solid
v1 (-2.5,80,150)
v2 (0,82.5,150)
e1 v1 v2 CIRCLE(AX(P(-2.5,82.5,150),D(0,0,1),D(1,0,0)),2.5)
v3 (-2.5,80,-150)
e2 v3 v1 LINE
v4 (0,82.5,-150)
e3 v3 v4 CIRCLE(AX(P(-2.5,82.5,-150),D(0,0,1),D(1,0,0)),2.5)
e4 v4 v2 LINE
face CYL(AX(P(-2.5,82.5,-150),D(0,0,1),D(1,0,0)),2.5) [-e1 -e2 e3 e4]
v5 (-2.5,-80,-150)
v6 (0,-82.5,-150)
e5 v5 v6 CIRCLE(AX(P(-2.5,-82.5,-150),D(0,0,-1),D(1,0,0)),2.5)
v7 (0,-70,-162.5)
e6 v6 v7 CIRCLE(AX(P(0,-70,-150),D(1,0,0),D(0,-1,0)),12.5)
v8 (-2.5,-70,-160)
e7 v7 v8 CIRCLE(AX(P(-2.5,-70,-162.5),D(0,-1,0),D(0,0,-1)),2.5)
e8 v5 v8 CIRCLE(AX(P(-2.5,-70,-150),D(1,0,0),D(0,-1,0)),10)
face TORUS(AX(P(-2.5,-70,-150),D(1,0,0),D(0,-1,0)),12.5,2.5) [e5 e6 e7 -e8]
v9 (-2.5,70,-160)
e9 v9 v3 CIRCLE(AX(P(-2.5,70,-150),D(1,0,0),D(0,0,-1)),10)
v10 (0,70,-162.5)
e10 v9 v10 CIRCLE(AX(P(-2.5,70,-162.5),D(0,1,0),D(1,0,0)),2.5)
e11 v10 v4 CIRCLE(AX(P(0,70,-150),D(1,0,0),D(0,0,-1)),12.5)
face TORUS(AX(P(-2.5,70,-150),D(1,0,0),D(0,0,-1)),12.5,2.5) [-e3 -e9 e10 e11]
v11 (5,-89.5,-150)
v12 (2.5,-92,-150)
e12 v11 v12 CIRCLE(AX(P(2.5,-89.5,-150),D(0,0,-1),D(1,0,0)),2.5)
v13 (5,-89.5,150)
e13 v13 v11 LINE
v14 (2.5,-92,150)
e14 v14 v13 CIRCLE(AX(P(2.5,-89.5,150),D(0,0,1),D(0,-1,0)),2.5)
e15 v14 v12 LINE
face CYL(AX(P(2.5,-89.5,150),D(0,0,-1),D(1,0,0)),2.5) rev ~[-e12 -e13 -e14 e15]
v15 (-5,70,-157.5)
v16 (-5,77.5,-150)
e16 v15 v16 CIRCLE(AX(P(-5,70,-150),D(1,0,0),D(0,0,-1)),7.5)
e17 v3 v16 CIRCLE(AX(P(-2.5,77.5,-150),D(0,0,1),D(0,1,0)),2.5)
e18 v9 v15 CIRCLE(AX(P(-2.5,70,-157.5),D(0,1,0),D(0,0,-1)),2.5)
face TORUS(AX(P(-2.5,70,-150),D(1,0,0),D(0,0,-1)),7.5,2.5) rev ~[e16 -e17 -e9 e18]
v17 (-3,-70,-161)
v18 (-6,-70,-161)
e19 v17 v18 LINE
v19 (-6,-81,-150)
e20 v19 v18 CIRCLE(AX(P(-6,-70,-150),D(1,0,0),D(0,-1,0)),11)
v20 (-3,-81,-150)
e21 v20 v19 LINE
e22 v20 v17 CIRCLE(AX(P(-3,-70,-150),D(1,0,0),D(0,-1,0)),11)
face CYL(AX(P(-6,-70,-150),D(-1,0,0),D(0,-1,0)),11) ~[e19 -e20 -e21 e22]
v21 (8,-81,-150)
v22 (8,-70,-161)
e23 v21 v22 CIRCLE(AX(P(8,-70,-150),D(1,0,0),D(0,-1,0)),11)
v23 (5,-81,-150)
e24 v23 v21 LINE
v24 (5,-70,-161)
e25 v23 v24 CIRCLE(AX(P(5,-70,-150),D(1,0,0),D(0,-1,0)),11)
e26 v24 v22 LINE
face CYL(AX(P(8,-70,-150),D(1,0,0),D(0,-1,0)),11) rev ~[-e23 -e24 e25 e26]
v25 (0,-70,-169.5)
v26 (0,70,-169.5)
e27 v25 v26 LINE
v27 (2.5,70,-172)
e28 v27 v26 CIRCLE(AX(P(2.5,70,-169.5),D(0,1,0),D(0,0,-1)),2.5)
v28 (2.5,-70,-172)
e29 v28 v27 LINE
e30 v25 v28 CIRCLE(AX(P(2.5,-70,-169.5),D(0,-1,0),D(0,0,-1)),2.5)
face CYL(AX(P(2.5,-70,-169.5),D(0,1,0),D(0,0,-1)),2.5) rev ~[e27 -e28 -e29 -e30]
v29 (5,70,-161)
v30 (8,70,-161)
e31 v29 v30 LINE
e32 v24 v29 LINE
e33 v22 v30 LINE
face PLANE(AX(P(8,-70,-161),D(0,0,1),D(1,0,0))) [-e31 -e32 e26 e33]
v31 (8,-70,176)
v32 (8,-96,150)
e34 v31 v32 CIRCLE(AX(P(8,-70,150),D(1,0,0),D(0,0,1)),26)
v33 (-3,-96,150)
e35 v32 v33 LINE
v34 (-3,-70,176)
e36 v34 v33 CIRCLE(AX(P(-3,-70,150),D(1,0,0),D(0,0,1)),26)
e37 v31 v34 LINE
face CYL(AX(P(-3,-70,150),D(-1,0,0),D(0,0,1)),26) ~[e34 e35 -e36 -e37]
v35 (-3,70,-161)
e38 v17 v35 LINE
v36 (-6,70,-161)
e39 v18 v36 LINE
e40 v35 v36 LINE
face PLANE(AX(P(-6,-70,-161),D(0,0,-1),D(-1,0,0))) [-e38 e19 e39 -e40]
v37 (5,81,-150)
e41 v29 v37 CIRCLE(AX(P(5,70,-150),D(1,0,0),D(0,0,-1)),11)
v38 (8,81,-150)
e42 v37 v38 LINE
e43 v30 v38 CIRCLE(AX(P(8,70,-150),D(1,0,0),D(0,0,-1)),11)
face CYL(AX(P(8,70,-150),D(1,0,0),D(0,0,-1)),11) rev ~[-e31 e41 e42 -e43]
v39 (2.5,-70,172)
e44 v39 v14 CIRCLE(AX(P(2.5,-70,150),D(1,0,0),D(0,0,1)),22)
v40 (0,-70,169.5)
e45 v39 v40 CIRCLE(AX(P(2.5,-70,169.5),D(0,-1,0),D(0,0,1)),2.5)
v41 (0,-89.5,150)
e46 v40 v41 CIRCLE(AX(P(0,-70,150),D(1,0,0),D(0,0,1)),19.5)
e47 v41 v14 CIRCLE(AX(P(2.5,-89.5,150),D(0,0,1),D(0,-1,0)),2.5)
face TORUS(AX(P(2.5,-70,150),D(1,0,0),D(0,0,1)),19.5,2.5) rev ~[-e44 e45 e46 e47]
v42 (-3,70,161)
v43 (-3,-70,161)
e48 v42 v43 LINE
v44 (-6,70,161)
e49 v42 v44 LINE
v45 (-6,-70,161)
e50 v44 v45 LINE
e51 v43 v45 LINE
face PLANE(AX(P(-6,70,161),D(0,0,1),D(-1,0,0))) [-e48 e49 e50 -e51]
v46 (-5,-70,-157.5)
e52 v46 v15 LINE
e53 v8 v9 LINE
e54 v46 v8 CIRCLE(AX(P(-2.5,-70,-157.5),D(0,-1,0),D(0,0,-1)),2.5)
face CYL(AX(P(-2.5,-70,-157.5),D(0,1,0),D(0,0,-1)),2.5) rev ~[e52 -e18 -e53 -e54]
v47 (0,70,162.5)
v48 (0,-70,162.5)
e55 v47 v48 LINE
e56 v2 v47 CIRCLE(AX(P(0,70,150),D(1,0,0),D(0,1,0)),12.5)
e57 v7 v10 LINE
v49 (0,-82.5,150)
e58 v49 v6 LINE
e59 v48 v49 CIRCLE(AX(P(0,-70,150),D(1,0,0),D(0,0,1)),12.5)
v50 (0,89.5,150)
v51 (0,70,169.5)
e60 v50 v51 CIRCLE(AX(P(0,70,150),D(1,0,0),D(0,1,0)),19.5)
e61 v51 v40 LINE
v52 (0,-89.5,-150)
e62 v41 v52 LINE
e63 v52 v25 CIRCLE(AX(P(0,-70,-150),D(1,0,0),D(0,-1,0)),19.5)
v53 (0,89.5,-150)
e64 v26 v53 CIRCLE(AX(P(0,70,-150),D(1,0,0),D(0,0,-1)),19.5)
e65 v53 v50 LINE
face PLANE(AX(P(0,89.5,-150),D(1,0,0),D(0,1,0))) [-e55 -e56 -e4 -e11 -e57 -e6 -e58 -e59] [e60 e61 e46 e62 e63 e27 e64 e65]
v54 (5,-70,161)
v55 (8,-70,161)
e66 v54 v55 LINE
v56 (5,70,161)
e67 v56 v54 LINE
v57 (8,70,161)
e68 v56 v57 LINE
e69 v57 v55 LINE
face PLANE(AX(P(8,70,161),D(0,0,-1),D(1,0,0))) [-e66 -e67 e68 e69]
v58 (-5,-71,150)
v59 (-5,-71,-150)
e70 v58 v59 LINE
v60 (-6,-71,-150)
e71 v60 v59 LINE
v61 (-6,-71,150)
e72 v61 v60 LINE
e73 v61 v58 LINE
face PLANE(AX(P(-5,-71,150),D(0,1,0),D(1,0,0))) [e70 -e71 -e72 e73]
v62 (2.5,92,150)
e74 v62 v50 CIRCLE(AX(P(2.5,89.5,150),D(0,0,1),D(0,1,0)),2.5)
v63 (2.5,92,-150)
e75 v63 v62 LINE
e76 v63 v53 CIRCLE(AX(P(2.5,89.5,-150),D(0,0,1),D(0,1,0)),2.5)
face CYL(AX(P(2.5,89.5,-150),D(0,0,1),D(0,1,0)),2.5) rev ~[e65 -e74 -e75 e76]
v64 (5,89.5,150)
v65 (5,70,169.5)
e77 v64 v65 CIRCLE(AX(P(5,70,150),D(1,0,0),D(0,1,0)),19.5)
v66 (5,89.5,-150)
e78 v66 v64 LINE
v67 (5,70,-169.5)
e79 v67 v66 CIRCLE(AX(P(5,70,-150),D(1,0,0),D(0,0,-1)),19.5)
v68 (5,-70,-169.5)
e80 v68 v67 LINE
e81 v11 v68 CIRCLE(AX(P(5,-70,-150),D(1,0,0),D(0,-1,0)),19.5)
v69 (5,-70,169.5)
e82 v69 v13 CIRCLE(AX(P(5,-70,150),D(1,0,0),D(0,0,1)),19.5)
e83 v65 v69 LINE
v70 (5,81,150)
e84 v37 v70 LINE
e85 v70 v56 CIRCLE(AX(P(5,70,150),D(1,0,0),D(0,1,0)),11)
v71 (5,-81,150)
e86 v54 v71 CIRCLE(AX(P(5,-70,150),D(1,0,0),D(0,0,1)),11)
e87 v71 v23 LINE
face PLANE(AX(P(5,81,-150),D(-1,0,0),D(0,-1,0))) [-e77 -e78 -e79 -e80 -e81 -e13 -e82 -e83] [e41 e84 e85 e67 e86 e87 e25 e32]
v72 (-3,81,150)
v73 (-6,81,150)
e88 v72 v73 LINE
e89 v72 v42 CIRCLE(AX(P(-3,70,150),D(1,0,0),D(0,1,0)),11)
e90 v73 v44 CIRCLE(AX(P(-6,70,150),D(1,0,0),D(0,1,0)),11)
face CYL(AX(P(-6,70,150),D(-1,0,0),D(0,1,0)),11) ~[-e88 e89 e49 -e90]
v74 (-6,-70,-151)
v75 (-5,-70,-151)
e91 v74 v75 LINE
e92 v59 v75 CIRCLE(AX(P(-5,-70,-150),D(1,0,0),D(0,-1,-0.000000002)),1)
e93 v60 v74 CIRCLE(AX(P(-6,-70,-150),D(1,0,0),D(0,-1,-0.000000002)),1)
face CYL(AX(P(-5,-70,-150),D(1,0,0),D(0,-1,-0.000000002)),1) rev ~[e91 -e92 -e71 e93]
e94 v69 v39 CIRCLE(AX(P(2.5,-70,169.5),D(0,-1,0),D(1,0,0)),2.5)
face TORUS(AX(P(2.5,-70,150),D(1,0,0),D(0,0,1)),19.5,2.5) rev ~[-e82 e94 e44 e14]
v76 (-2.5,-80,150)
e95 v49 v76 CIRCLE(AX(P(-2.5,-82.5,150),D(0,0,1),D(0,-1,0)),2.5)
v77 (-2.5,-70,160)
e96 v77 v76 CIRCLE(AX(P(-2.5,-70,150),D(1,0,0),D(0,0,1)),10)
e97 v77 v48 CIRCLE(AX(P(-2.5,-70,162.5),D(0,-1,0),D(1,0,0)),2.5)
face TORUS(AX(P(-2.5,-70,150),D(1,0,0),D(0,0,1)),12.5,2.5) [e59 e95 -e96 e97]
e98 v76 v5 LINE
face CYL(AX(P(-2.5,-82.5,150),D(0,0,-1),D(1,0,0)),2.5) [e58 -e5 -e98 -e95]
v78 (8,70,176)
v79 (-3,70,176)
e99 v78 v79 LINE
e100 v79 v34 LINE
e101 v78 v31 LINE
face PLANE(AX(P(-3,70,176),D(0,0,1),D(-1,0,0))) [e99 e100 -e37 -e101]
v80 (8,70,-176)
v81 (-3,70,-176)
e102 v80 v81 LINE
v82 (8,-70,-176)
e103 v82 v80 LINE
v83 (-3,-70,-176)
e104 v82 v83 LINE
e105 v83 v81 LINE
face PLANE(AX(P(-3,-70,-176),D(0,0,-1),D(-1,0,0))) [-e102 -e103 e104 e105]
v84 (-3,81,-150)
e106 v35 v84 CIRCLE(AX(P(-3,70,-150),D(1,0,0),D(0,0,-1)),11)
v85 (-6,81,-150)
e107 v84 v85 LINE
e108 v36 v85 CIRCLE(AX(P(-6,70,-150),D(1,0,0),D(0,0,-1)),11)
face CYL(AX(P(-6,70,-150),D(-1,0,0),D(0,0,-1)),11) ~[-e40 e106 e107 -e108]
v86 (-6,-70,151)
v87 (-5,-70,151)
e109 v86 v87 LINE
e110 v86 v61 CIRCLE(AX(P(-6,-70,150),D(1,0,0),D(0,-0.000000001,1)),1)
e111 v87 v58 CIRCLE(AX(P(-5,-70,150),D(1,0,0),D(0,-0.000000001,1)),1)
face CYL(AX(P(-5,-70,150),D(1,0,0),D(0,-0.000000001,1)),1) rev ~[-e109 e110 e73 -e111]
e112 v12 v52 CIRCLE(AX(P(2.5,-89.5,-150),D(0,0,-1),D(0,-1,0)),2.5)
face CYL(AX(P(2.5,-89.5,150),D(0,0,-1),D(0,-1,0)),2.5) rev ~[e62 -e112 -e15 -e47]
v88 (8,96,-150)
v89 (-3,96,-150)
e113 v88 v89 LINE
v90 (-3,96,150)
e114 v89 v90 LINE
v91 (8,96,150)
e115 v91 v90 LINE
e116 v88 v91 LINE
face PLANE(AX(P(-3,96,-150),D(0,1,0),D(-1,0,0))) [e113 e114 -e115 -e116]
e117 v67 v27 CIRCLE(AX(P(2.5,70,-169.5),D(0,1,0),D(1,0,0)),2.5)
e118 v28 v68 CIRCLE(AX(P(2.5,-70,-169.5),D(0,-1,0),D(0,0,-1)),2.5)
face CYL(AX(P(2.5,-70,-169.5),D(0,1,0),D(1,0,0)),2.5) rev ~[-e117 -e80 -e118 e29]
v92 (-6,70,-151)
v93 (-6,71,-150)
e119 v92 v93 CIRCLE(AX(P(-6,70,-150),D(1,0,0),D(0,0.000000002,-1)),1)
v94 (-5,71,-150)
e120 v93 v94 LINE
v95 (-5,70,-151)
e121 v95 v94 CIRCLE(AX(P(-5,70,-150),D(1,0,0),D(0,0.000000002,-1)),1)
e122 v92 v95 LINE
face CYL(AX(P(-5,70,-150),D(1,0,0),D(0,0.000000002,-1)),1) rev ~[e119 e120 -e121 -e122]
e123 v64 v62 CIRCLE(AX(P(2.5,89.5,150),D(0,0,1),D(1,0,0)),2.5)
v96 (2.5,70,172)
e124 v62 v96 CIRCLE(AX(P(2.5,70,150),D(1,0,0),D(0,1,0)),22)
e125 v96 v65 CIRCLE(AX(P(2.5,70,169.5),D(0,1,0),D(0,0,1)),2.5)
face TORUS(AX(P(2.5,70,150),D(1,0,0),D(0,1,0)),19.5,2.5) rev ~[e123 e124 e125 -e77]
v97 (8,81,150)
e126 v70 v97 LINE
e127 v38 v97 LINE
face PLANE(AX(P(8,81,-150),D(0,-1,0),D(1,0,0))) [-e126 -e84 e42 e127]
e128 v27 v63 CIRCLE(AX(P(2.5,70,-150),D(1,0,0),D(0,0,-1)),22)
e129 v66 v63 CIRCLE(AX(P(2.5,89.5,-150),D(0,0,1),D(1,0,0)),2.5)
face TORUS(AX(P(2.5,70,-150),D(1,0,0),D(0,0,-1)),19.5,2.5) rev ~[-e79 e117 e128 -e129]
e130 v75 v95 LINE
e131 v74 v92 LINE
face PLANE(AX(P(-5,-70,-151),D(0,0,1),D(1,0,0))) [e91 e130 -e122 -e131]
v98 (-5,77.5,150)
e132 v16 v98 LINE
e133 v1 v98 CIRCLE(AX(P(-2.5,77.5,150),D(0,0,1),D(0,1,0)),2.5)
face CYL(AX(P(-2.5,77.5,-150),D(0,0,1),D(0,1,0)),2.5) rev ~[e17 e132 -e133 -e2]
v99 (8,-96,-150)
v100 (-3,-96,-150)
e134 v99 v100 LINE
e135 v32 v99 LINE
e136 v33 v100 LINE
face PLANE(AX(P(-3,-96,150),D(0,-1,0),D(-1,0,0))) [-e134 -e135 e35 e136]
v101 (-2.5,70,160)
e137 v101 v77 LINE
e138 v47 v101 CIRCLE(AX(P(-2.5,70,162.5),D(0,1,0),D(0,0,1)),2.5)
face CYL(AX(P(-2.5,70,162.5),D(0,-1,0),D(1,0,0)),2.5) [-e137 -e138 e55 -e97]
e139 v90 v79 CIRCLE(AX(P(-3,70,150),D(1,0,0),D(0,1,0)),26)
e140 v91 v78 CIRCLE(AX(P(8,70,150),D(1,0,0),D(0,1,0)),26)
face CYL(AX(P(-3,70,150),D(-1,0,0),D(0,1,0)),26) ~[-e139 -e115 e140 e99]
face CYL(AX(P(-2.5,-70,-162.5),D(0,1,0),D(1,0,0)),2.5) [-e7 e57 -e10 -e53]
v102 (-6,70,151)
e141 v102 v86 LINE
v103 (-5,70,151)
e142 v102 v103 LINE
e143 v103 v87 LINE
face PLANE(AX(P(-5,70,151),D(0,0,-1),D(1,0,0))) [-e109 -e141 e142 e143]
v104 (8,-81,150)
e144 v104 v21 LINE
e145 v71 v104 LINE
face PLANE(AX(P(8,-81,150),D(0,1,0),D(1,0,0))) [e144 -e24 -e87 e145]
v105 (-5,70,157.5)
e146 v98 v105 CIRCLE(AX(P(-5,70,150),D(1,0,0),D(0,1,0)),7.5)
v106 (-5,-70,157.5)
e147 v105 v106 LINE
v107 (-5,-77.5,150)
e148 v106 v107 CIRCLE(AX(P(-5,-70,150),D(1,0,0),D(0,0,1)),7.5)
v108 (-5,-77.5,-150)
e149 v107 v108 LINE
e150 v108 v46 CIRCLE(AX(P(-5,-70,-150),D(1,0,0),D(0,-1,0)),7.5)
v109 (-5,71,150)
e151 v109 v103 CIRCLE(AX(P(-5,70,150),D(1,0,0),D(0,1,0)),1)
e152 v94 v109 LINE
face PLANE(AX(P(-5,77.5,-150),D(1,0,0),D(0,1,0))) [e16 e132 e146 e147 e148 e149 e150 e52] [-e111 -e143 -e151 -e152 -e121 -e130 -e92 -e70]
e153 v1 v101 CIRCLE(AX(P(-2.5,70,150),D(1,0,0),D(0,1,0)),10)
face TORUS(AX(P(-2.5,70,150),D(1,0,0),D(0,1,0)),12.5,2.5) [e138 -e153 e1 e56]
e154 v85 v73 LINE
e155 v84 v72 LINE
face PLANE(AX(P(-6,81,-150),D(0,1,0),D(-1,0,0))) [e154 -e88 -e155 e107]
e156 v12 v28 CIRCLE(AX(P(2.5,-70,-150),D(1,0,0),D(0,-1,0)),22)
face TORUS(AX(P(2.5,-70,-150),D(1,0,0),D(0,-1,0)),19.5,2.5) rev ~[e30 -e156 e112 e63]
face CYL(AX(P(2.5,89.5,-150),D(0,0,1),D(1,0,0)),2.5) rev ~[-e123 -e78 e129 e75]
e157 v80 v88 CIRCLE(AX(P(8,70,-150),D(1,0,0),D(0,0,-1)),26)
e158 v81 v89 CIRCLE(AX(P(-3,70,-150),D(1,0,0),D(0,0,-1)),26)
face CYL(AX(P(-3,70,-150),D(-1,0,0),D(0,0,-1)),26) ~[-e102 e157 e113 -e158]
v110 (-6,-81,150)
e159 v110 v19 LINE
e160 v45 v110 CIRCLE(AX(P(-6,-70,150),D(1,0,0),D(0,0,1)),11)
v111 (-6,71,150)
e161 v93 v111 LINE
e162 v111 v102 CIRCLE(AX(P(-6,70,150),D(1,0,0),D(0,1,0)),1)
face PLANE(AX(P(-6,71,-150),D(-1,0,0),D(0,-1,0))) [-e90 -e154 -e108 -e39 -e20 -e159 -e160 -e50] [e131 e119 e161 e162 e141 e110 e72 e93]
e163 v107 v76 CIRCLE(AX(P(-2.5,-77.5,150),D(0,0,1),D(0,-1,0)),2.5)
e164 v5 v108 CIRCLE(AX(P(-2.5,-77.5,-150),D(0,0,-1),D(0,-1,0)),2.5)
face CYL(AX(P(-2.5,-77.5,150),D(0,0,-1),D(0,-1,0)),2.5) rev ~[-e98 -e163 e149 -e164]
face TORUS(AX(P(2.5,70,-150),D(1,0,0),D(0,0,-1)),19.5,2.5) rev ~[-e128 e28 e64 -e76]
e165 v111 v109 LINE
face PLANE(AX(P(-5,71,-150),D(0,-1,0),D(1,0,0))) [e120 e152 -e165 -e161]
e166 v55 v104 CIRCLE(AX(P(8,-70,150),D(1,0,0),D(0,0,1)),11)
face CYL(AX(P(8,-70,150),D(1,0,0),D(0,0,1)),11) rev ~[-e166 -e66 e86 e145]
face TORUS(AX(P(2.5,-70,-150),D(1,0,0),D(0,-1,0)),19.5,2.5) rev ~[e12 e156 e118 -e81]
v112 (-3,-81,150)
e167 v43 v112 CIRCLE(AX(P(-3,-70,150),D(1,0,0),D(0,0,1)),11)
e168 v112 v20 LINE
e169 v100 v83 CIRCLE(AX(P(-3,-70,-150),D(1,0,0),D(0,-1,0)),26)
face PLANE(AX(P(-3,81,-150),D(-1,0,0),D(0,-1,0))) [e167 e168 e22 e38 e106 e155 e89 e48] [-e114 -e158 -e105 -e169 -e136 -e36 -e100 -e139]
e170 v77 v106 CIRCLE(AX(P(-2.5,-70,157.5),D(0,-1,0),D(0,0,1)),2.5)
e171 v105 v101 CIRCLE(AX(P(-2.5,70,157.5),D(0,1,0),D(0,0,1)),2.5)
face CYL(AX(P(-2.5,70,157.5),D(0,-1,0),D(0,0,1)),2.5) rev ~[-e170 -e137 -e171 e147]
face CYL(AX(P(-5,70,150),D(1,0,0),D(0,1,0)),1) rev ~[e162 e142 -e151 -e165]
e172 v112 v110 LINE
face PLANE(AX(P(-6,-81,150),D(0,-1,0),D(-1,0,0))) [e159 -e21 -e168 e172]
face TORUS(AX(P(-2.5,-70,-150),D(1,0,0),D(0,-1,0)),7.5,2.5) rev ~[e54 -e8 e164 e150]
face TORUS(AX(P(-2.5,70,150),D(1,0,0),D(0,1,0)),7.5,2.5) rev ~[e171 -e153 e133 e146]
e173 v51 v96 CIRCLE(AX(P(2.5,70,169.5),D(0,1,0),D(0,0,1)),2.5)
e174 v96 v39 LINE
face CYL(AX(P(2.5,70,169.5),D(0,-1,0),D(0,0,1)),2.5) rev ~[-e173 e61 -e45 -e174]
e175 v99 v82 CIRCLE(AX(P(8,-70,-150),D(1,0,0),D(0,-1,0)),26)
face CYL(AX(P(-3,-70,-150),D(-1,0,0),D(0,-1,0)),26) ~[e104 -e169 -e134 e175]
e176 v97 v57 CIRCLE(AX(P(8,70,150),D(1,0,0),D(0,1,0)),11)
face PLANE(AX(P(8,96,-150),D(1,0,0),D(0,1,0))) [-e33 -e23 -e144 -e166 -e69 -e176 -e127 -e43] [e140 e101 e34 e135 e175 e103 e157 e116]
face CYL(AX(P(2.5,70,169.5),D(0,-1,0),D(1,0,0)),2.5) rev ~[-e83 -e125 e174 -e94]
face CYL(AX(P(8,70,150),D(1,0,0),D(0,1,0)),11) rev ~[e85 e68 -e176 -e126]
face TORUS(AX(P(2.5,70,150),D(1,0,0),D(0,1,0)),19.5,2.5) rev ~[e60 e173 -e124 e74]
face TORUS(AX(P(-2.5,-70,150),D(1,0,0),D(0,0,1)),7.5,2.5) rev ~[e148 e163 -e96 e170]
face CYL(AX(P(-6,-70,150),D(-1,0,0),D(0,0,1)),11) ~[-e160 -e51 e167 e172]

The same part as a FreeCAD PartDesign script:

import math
import FreeCAD as App
import Part
import Sketcher

doc = App.newDocument("Part")
body = doc.addObject("PartDesign::Body", "Body")

sketch1 = body.newObject("Sketcher::SketchObject", "Sketch")
sketch1.AttachmentSupport = (doc.getObject("XY_Plane"), [""])
sketch1.MapMode = "FlatFace"
sketch1.addGeometry([
    Part.LineSegment(App.Vector(5, 89.5, 0), App.Vector(5, 81, 0)),
    Part.LineSegment(App.Vector(5, 81, 0), App.Vector(8, 81, 0)),
    Part.LineSegment(App.Vector(8, 81, 0), App.Vector(8, 96, 0)),
    Part.LineSegment(App.Vector(8, 96, 0), App.Vector(-3, 96, 0)),
    Part.LineSegment(App.Vector(-3, 96, 0), App.Vector(-3, 81, 0)),
    Part.LineSegment(App.Vector(-3, 81, 0), App.Vector(-6, 81, 0)),
    Part.LineSegment(App.Vector(-6, 81, 0), App.Vector(-6, 71, 0)),
    Part.LineSegment(App.Vector(-6, 71, 0), App.Vector(-5, 71, 0)),
    Part.LineSegment(App.Vector(-5, 71, 0), App.Vector(-5, 77.5, 0)),
    Part.ArcOfCircle(Part.Circle(App.Vector(-2.5, 77.5, 0), App.Vector(0, 0, 1), 2.5), math.radians(90), math.radians(180)),
    Part.ArcOfCircle(Part.Circle(App.Vector(-2.5, 82.5, 0), App.Vector(0, 0, 1), 2.5), math.radians(-90), math.radians(0)),
    Part.LineSegment(App.Vector(0, 82.5, 0), App.Vector(0, 89.5, 0)),
    Part.ArcOfCircle(Part.Circle(App.Vector(2.5, 89.5, 0), App.Vector(0, 0, 1), 2.5), math.radians(90), math.radians(180)),
    Part.ArcOfCircle(Part.Circle(App.Vector(2.5, 89.5, 0), App.Vector(0, 0, 1), 2.5), math.radians(0), math.radians(90)),
], False)
sketch1.addConstraint([
    Sketcher.Constraint("Coincident", 0, 2, 1, 1),
    Sketcher.Constraint("Coincident", 1, 2, 2, 1),
    Sketcher.Constraint("Coincident", 2, 2, 3, 1),
    Sketcher.Constraint("Coincident", 3, 2, 4, 1),
    Sketcher.Constraint("Coincident", 4, 2, 5, 1),
    Sketcher.Constraint("Coincident", 5, 2, 6, 1),
    Sketcher.Constraint("Coincident", 6, 2, 7, 1),
    Sketcher.Constraint("Coincident", 7, 2, 8, 1),
    Sketcher.Constraint("Tangent", 8, 2, 9, 2),
    Sketcher.Constraint("Tangent", 9, 1, 10, 1),
    Sketcher.Constraint("Tangent", 10, 2, 11, 1),
    Sketcher.Constraint("Tangent", 11, 2, 12, 2),
    Sketcher.Constraint("Tangent", 12, 1, 13, 2),
    Sketcher.Constraint("Tangent", 13, 1, 0, 1),
    Sketcher.Constraint("Vertical", 0),
    Sketcher.Constraint("Horizontal", 1),
    Sketcher.Constraint("Vertical", 2),
    Sketcher.Constraint("Horizontal", 3),
    Sketcher.Constraint("Vertical", 4),
    Sketcher.Constraint("Horizontal", 5),
    Sketcher.Constraint("Vertical", 6),
    Sketcher.Constraint("Horizontal", 7),
    Sketcher.Constraint("Vertical", 8),
    Sketcher.Constraint("Vertical", 11),
    Sketcher.Constraint("Equal", 9, 10),
    Sketcher.Constraint("Equal", 10, 12),
    Sketcher.Constraint("Equal", 12, 13),
    Sketcher.Constraint("PointOnObject", 10, 2, -2),
    Sketcher.Constraint("Horizontal", 1, 2, 4, 2),
    Sketcher.Constraint("Vertical", 9, 3, 10, 3),
    Sketcher.Constraint("Vertical", 13, 3, 12, 1),
    Sketcher.Constraint("Equal", 1, 5),
    Sketcher.Constraint("Radius", 9, 2.5),
    Sketcher.Constraint("DistanceX", 1, 1, 1, 2, 3.0),
    Sketcher.Constraint("DistanceX", 3, 2, 3, 1, 11.0),
    Sketcher.Constraint("DistanceY", 2, 1, 2, 2, 15.0),
    Sketcher.Constraint("DistanceY", 6, 2, 6, 1, 10.0),
    Sketcher.Constraint("DistanceY", 11, 1, 11, 2, 7.0),
    Sketcher.Constraint("DistanceY", 0, 2, 0, 1, 8.5),
    Sketcher.Constraint("DistanceY", -1, 1, 0, 2, 81.0),
])

sketch2 = body.newObject("Sketcher::SketchObject", "Sketch001")
sketch2.AttachmentSupport = (doc.getObject("YZ_Plane"), [""])
sketch2.MapMode = "FlatFace"
sketch2.AttachmentOffset = App.Placement(App.Vector(0, 0, 2.5), App.Rotation())
sketch2.addGeometry([
    Part.LineSegment(App.Vector(92, -150, 0), App.Vector(92, 150, 0)),
    Part.ArcOfCircle(Part.Circle(App.Vector(70, 150, 0), App.Vector(0, 0, 1), 22), math.radians(0), math.radians(90)),
    Part.LineSegment(App.Vector(70, 172, 0), App.Vector(-70, 172, 0)),
    Part.ArcOfCircle(Part.Circle(App.Vector(-70, 150, 0), App.Vector(0, 0, 1), 22), math.radians(90), math.radians(180)),
    Part.LineSegment(App.Vector(-92, 150, 0), App.Vector(-92, -150, 0)),
    Part.ArcOfCircle(Part.Circle(App.Vector(-70, -150, 0), App.Vector(0, 0, 1), 22), math.radians(180), math.radians(270)),
    Part.LineSegment(App.Vector(-70, -172, 0), App.Vector(70, -172, 0)),
    Part.ArcOfCircle(Part.Circle(App.Vector(70, -150, 0), App.Vector(0, 0, 1), 22), math.radians(-90), math.radians(0)),
], False)
sketch2.addConstraint([
    Sketcher.Constraint("Tangent", 0, 2, 1, 1),
    Sketcher.Constraint("Tangent", 1, 2, 2, 1),
    Sketcher.Constraint("Tangent", 2, 2, 3, 1),
    Sketcher.Constraint("Tangent", 3, 2, 4, 1),
    Sketcher.Constraint("Tangent", 4, 2, 5, 1),
    Sketcher.Constraint("Tangent", 5, 2, 6, 1),
    Sketcher.Constraint("Tangent", 6, 2, 7, 1),
    Sketcher.Constraint("Tangent", 7, 2, 0, 1),
    Sketcher.Constraint("Vertical", 0),
    Sketcher.Constraint("Horizontal", 2),
    Sketcher.Constraint("Vertical", 4),
    Sketcher.Constraint("Horizontal", 6),
    Sketcher.Constraint("Equal", 1, 3),
    Sketcher.Constraint("Equal", 3, 5),
    Sketcher.Constraint("Equal", 5, 7),
    Sketcher.Constraint("Symmetric", 1, 3, 5, 3, -1, 1),
    Sketcher.Constraint("Radius", 1, 22.0),
    Sketcher.Constraint("DistanceX", 2, 2, 2, 1, 140.0),
    Sketcher.Constraint("DistanceY", 0, 1, 0, 2, 300.0),
])
doc.recompute()

additivepipe = body.newObject("PartDesign::AdditivePipe", "AdditivePipe")
additivepipe.Profile = sketch1
additivepipe.Spine = (sketch2, ["Edge1", "Edge2", "Edge3", "Edge4", "Edge5", "Edge6", "Edge7", "Edge8"])

doc.recompute()
